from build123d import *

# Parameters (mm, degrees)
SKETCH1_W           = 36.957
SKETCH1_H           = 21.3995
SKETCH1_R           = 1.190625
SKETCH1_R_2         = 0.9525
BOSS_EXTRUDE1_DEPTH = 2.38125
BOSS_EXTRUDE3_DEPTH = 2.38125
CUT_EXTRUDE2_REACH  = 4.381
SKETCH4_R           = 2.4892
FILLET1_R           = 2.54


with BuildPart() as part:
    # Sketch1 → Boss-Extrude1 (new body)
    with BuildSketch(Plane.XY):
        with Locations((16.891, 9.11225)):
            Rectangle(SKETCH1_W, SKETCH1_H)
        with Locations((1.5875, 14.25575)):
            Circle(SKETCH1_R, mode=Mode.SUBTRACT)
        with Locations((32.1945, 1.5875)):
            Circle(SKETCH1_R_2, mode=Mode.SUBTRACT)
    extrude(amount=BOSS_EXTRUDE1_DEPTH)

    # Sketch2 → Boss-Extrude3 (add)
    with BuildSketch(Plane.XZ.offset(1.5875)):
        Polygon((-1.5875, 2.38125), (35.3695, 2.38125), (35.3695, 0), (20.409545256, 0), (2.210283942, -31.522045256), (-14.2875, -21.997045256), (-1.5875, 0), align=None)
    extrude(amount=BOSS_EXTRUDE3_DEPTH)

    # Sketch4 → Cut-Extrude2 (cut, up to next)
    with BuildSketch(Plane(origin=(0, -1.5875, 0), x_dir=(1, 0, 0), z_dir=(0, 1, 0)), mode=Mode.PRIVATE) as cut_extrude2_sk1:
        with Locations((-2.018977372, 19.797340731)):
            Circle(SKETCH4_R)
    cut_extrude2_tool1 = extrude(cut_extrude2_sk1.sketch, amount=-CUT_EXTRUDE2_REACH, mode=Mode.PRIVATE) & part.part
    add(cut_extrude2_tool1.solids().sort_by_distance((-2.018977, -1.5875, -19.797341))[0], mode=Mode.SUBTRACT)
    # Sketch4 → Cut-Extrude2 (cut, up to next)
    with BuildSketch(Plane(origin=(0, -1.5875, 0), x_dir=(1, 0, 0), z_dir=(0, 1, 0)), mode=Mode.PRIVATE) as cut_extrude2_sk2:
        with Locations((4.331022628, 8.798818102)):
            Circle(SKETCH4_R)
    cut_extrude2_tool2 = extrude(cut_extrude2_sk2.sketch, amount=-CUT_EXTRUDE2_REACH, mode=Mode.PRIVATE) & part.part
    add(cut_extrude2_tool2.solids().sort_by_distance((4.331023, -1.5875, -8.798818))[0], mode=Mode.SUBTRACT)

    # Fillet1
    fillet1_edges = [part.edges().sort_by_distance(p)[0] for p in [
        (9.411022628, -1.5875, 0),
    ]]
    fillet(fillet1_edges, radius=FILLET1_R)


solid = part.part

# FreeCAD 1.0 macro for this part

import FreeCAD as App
import Part
import Sketcher
from FreeCAD import Vector
Q = App.Units.Quantity


def edges_at(feature, points):
    """Names of the edges that pass closest to the given points."""
    edges = feature.Shape.Edges
    near = lambda p: min(range(len(edges)), key=lambda i: edges[i].distToShape(Part.Vertex(*p))[0])
    return sorted({f"Edge{near(p) + 1}" for p in points})


def add_polygon(sketch, points):
    """Adds a closed chain of lines whose ends are joined by coincident constraints."""
    first, n = sketch.GeometryCount, len(points)
    for a, b in zip(points, points[1:] + points[:1]):
        sketch.addGeometry(Part.LineSegment(App.Vector(*a, 0), App.Vector(*b, 0)), False)
    for i in range(n):
        sketch.addConstraint(Sketcher.Constraint("Coincident", first + i, 2, first + (i + 1) % n, 1))

doc = App.newDocument("Part")
body = doc.addObject("PartDesign::Body", "Body")

sketch1 = body.newObject("Sketcher::SketchObject", "Sketch")
sketch1.AttachmentSupport = (doc.getObject("XY_Plane"), [""])
sketch1.MapMode = "FlatFace"
add_polygon(sketch1, [(-1.5875, 19.812), (-1.5875, -1.5875), (35.3695, -1.5875), (35.3695, 19.812)])
sketch1.addGeometry(Part.Circle(Vector(32.1945, 1.5875, 0), Vector(0, 0, 1), 0.9525), False)
sketch1.addGeometry(Part.Circle(Vector(1.5875, 14.25575, 0), Vector(0, 0, 1), 1.190625), False)
sketch1.addConstraint([
    Sketcher.Constraint("Vertical", 0),
    Sketcher.Constraint("Horizontal", 1),
    Sketcher.Constraint("Vertical", 2),
    Sketcher.Constraint("Horizontal", 3),
    Sketcher.Constraint("Diameter", 4, Q("0.075 in")),
    Sketcher.Constraint("Diameter", 5, Q("0.09375 in")),
    Sketcher.Constraint("DistanceX", 1, 1, 1, 2, Q("1.455 in")),
    Sketcher.Constraint("DistanceY", -1, 1, 2, 2, Q("0.78 in")),
    Sketcher.Constraint("DistanceX", 0, 2, 4, 3, Q("1.33 in")),
    Sketcher.Constraint("DistanceX", 5, 3, 1, 2, Q("1.33 in")),
    Sketcher.Constraint("DistanceY", 0, 2, 0, 1, Q("0.8425 in")),
    Sketcher.Constraint("DistanceY", -1, 1, 4, 3, Q("0.0625 in")),
    Sketcher.Constraint("DistanceX", -1, 1, 5, 3, Q("0.0625 in")),
    Sketcher.Constraint("DistanceY", 5, 3, 2, 2, Q("0.21875 in")),
])
pad1 = body.newObject("PartDesign::Pad", "Pad")
pad1.Profile = sketch1
pad1.Length = Q("0.09375 in")

sketch2 = body.newObject("Sketcher::SketchObject", "Sketch001")
sketch2.AttachmentSupport = (doc.getObject("XZ_Plane"), [""])
sketch2.MapMode = "FlatFace"
sketch2.AttachmentOffset = App.Placement(Vector(0, 0, 0.0625 * 25.4), App.Rotation())
add_polygon(sketch2, [(35.3695, 2.38125), (-1.5875, 2.38125), (-1.5875, 0), (-14.2875, -21.997045), (2.210284, -31.522045), (20.409545, 0), (35.3695, 0)])
sketch2.addConstraint([
    Sketcher.Constraint("Horizontal", 0),
    Sketcher.Constraint("Vertical", 1),
    Sketcher.Constraint("Horizontal", 5),
    Sketcher.Constraint("Vertical", 6),
    Sketcher.Constraint("PointOnObject", 1, 2, -1),
    Sketcher.Constraint("PointOnObject", 4, 2, -1),
    Sketcher.Constraint("Perpendicular", 2, 3),
    Sketcher.Constraint("Perpendicular", 3, 4),
    Sketcher.Constraint("Distance", 2, Q("1 in")),
    Sketcher.Constraint("Angle", 2, Q("-120 deg")),
    Sketcher.Constraint("Distance", 3, Q("0.75 in")),
    Sketcher.Constraint("DistanceX", 0, 2, 0, 1, Q("1.455 in")),
    Sketcher.Constraint("DistanceY", 1, 2, 1, 1, Q("0.09375 in")),
    Sketcher.Constraint("DistanceX", 0, 2, -1, 1, Q("0.0625 in")),
])
pad2 = body.newObject("PartDesign::Pad", "Pad001")
pad2.Profile = sketch2
pad2.Length = Q("0.09375 in")

sketch3 = body.newObject("Sketcher::SketchObject", "Sketch002")
sketch3.AttachmentSupport = (doc.getObject("XZ_Plane"), [""])
sketch3.MapMode = "FlatFace"
sketch3.AttachmentOffset = App.Placement(Vector(0, 0, 0.0625 * 25.4), App.Rotation())
sketch3.addGeometry(Part.Circle(Vector(-2.018977, -19.797341, 0), Vector(0, 0, 1), 2.4892), False)
sketch3.addConstraint([
    Sketcher.Constraint("Diameter", 0, Q("0.196 in")),
    Sketcher.Constraint("DistanceY", 0, 3, -1, 1, Q("19.797341 mm")),
    Sketcher.Constraint("DistanceX", 0, 3, -1, 1, Q("2.018977 mm")),
])
pocket1 = body.newObject("PartDesign::Pocket", "Pocket")
pocket1.Profile = sketch3
pocket1.Type = "UpToFirst"
pocket1.Reversed = True

sketch4 = body.newObject("Sketcher::SketchObject", "Sketch003")
sketch4.AttachmentSupport = (doc.getObject("XZ_Plane"), [""])
sketch4.MapMode = "FlatFace"
sketch4.AttachmentOffset = App.Placement(Vector(0, 0, 0.0625 * 25.4), App.Rotation())
sketch4.addGeometry(Part.Circle(Vector(4.331023, -8.798818, 0), Vector(0, 0, 1), 2.4892), False)
sketch4.addConstraint([
    Sketcher.Constraint("Diameter", 0, Q("0.196 in")),
    Sketcher.Constraint("DistanceY", 0, 3, -1, 1, Q("8.798818 mm")),
    Sketcher.Constraint("DistanceX", -1, 1, 0, 3, Q("4.331023 mm")),
])
pocket2 = body.newObject("PartDesign::Pocket", "Pocket001")
pocket2.Profile = sketch4
pocket2.Type = "UpToFirst"
pocket2.Reversed = True
doc.recompute()

fillet = body.newObject("PartDesign::Fillet", "Fillet")
fillet.Base = (pocket2, edges_at(pocket2, [(9.411, -1.587, 0)]))
fillet.Radius = Q("0.1 in")

doc.recompute()
